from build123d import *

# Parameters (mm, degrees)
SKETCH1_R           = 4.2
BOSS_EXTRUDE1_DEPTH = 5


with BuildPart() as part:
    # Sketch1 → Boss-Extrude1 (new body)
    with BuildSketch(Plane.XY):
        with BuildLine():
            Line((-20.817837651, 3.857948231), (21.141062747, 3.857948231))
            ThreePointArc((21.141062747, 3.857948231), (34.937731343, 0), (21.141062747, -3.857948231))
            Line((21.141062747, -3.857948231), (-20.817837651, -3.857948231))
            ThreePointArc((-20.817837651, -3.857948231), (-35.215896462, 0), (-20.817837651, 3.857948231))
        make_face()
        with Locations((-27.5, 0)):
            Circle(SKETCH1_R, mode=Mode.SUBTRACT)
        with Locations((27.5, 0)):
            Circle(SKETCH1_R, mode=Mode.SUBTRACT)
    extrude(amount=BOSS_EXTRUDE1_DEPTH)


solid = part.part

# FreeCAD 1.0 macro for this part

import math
import FreeCAD as App
import Part
import Sketcher
Q = App.Units.Quantity

doc = App.newDocument("Part")
body = doc.addObject("PartDesign::Body", "Body")

# Sketch on XY plane
sketch1 = doc.addObject("Sketcher::SketchObject", "Sketch")
body.addObject(sketch1)
sketch1.AttachmentSupport = (doc.XY_Plane, [""])
sketch1.MapMode = "FlatFace"
sketch1.addGeometry([
    Part.LineSegment(App.Vector(21.1, 3.9, 0), App.Vector(-20.8, 3.9, 0)),  # 0
    Part.ArcOfCircle(Part.Circle(App.Vector(-27.5, 0, 0), App.Vector(0, 0, 1), 7.7), math.radians(30), math.radians(330)),  # 1
    Part.LineSegment(App.Vector(-20.8, -3.9, 0), App.Vector(21.1, -3.9, 0)),  # 2
    Part.ArcOfCircle(Part.Circle(App.Vector(27.5, 0, 0), App.Vector(0, 0, 1), 7.4), math.radians(-149), math.radians(149)),  # 3
    Part.Circle(App.Vector(27.5, 0, 0), App.Vector(0, 0, 1), 4.2),  # 4
    Part.Circle(App.Vector(-27.5, 0, 0), App.Vector(0, 0, 1), 4.2),  # 5
], False)
sketch1.addConstraint([
    Sketcher.Constraint("Coincident", 0, 2, 1, 1),
    Sketcher.Constraint("Coincident", 1, 2, 2, 1),
    Sketcher.Constraint("Coincident", 2, 2, 3, 1),
    Sketcher.Constraint("Coincident", 3, 2, 0, 1),
    Sketcher.Constraint("Horizontal", 0),
    Sketcher.Constraint("Horizontal", 2),
    Sketcher.Constraint("Coincident", 4, 3, 3, 3),
    Sketcher.Constraint("Coincident", 5, 3, 1, 3),
    Sketcher.Constraint("Equal", 4, 5),
    Sketcher.Constraint("Symmetric", 1, 3, 3, 3, -1, 1),
    Sketcher.Constraint("Symmetric", 0, 2, 1, 2, -1),
    Sketcher.Constraint("Diameter", 4, Q("8.4 mm")),
    Sketcher.Constraint("DistanceX", 1, 3, 3, 3, Q("55 mm")),
    Sketcher.Constraint("Radius", 3, Q("7.437731 mm")),
    Sketcher.Constraint("DistanceX", 0, 2, 0, 1, Q("41.9589 mm")),
    Sketcher.Constraint("Radius", 1, Q("7.715896 mm")),
])
pad1 = doc.addObject("PartDesign::Pad", "Pad")
body.addObject(pad1)
pad1.Profile = sketch1
pad1.Length = 5

doc.recompute()
